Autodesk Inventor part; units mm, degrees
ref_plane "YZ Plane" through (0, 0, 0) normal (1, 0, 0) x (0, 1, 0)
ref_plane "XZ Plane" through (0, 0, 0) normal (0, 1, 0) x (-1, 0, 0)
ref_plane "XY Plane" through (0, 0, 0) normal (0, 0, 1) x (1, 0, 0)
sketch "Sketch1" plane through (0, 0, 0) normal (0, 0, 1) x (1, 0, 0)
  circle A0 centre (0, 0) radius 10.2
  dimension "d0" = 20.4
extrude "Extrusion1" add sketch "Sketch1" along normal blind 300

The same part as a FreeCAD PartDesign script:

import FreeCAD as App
import Part
import Sketcher

V = App.Vector
Q = App.Units.Quantity

doc = App.newDocument("Part")
body = doc.addObject("PartDesign::Body", "Body")

# Sketch on XY plane
sketch1 = body.newObject("Sketcher::SketchObject", "Sketch")
sketch1.AttachmentSupport = (doc.getObject("XY_Plane"), [""])
sketch1.MapMode = "FlatFace"
sketch1.addGeometry(Part.Circle(V(0, 0, 0), V(0, 0, 1), 10.2), False)
sketch1.addConstraint([
    Sketcher.Constraint("Coincident", 0, 3, -1, 1),
    Sketcher.Constraint("Diameter", 0, Q("20.4 mm")),
])
pad1 = body.newObject("PartDesign::Pad", "Pad")
pad1.Profile = sketch1
pad1.Length = 300

doc.recompute()
